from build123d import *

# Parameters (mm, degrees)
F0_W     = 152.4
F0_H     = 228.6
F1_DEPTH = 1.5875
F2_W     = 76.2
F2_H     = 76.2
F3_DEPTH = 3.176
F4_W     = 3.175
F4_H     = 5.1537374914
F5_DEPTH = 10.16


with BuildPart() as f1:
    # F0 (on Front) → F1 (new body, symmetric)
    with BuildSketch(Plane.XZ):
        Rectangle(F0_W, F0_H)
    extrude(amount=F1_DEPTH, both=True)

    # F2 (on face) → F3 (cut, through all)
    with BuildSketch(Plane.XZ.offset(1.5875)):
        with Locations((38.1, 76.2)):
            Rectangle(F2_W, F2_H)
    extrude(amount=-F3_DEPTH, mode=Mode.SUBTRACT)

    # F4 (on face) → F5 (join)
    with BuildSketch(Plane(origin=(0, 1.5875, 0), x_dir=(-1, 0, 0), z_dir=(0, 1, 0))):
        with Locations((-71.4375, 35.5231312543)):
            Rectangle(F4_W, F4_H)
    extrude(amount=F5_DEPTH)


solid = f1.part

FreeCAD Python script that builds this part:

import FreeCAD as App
import Part
import Sketcher
from FreeCAD import Vector
Q = App.Units.Quantity

doc = App.newDocument("Part")
body = doc.addObject("PartDesign::Body", "Body")

# Sketch on XZ plane
sketch1 = body.newObject("Sketcher::SketchObject", "Sketch")
sketch1.AttachmentSupport = (doc.getObject("XZ_Plane"), [""])
sketch1.MapMode = "FlatFace"
sketch1.addGeometry([
    Part.LineSegment(Vector(-76, 114, 0), Vector(-76, -114, 0)),
    Part.LineSegment(Vector(-76, -114, 0), Vector(76, -114, 0)),
    Part.LineSegment(Vector(76, -114, 0), Vector(76, 114, 0)),
    Part.LineSegment(Vector(76, 114, 0), Vector(-76, 114, 0)),
], False)
sketch1.addConstraint([
    Sketcher.Constraint("Coincident", 0, 2, 1, 1),
    Sketcher.Constraint("Coincident", 1, 2, 2, 1),
    Sketcher.Constraint("Coincident", 2, 2, 3, 1),
    Sketcher.Constraint("Coincident", 3, 2, 0, 1),
    Sketcher.Constraint("Vertical", 0),
    Sketcher.Constraint("Horizontal", 1),
    Sketcher.Constraint("Vertical", 2),
    Sketcher.Constraint("Horizontal", 3),
    Sketcher.Constraint("Symmetric", 0, 2, 2, 2, -1, 1),
    Sketcher.Constraint("DistanceX", 1, 1, 1, 2, Q("6 in")),
    Sketcher.Constraint("DistanceY", 0, 2, 0, 1, Q("9 in")),
])
pad1 = body.newObject("PartDesign::Pad", "Pad")
pad1.Profile = sketch1
pad1.Length = Q("0.125 in")
pad1.Midplane = True

# Sketch on XZ plane
sketch2 = body.newObject("Sketcher::SketchObject", "Sketch001")
sketch2.AttachmentSupport = (doc.getObject("XZ_Plane"), [""])
sketch2.MapMode = "FlatFace"
sketch2.AttachmentOffset = App.Placement(Vector(0, 0, 0.0625 * 25.4), App.Rotation())
sketch2.addGeometry([
    Part.LineSegment(Vector(0, 114, 0), Vector(0, 38, 0)),
    Part.LineSegment(Vector(0, 38, 0), Vector(76, 38, 0)),
    Part.LineSegment(Vector(76, 38, 0), Vector(76, 114, 0)),
    Part.LineSegment(Vector(76, 114, 0), Vector(0, 114, 0)),
], False)
sketch2.addConstraint([
    Sketcher.Constraint("Coincident", 0, 2, 1, 1),
    Sketcher.Constraint("Coincident", 1, 2, 2, 1),
    Sketcher.Constraint("Coincident", 2, 2, 3, 1),
    Sketcher.Constraint("Coincident", 3, 2, 0, 1),
    Sketcher.Constraint("Vertical", 0),
    Sketcher.Constraint("Horizontal", 1),
    Sketcher.Constraint("Vertical", 2),
    Sketcher.Constraint("Horizontal", 3),
    Sketcher.Constraint("PointOnObject", 0, 2, -2),
    Sketcher.Constraint("Equal", 3, 0),
    Sketcher.Constraint("DistanceX", 1, 1, 1, 2, Q("3 in")),
    Sketcher.Constraint("DistanceY", -1, 1, 0, 2, Q("1.5 in")),
])
pocket1 = body.newObject("PartDesign::Pocket", "Pocket")
pocket1.Profile = sketch2
pocket1.Type = "ThroughAll"

# Sketch on XZ plane
sketch3 = body.newObject("Sketcher::SketchObject", "Sketch002")
sketch3.AttachmentSupport = (doc.getObject("XZ_Plane"), [""])
sketch3.MapMode = "FlatFace"
sketch3.AttachmentOffset = App.Placement(Vector(0, 0, -0.0625 * 25.4), App.Rotation())
sketch3.addGeometry([
    Part.LineSegment(Vector(73, 38.1, 0), Vector(73, 32.9, 0)),
    Part.LineSegment(Vector(73, 32.9, 0), Vector(69.8, 32.9, 0)),
    Part.LineSegment(Vector(69.8, 32.9, 0), Vector(69.8, 38.1, 0)),
    Part.LineSegment(Vector(69.8, 38.1, 0), Vector(73, 38.1, 0)),
], False)
sketch3.addConstraint([
    Sketcher.Constraint("Coincident", 0, 2, 1, 1),
    Sketcher.Constraint("Coincident", 1, 2, 2, 1),
    Sketcher.Constraint("Coincident", 2, 2, 3, 1),
    Sketcher.Constraint("Coincident", 3, 2, 0, 1),
    Sketcher.Constraint("Vertical", 0),
    Sketcher.Constraint("Horizontal", 1),
    Sketcher.Constraint("Vertical", 2),
    Sketcher.Constraint("Horizontal", 3),
    Sketcher.Constraint("DistanceY", -1, 1, 2, 2, Q("1.5 in")),
    Sketcher.Constraint("DistanceX", 1, 2, 1, 1, Q("0.125 in")),
    Sketcher.Constraint("DistanceX", -1, 1, 1, 2, Q("2.75 in")),
    Sketcher.Constraint("DistanceY", 0, 2, 0, 1, Q("5.153737 mm")),
])
pad2 = body.newObject("PartDesign::Pad", "Pad001")
pad2.Profile = sketch3
pad2.Length = Q("0.4 in")
pad2.Reversed = True

doc.recompute()
